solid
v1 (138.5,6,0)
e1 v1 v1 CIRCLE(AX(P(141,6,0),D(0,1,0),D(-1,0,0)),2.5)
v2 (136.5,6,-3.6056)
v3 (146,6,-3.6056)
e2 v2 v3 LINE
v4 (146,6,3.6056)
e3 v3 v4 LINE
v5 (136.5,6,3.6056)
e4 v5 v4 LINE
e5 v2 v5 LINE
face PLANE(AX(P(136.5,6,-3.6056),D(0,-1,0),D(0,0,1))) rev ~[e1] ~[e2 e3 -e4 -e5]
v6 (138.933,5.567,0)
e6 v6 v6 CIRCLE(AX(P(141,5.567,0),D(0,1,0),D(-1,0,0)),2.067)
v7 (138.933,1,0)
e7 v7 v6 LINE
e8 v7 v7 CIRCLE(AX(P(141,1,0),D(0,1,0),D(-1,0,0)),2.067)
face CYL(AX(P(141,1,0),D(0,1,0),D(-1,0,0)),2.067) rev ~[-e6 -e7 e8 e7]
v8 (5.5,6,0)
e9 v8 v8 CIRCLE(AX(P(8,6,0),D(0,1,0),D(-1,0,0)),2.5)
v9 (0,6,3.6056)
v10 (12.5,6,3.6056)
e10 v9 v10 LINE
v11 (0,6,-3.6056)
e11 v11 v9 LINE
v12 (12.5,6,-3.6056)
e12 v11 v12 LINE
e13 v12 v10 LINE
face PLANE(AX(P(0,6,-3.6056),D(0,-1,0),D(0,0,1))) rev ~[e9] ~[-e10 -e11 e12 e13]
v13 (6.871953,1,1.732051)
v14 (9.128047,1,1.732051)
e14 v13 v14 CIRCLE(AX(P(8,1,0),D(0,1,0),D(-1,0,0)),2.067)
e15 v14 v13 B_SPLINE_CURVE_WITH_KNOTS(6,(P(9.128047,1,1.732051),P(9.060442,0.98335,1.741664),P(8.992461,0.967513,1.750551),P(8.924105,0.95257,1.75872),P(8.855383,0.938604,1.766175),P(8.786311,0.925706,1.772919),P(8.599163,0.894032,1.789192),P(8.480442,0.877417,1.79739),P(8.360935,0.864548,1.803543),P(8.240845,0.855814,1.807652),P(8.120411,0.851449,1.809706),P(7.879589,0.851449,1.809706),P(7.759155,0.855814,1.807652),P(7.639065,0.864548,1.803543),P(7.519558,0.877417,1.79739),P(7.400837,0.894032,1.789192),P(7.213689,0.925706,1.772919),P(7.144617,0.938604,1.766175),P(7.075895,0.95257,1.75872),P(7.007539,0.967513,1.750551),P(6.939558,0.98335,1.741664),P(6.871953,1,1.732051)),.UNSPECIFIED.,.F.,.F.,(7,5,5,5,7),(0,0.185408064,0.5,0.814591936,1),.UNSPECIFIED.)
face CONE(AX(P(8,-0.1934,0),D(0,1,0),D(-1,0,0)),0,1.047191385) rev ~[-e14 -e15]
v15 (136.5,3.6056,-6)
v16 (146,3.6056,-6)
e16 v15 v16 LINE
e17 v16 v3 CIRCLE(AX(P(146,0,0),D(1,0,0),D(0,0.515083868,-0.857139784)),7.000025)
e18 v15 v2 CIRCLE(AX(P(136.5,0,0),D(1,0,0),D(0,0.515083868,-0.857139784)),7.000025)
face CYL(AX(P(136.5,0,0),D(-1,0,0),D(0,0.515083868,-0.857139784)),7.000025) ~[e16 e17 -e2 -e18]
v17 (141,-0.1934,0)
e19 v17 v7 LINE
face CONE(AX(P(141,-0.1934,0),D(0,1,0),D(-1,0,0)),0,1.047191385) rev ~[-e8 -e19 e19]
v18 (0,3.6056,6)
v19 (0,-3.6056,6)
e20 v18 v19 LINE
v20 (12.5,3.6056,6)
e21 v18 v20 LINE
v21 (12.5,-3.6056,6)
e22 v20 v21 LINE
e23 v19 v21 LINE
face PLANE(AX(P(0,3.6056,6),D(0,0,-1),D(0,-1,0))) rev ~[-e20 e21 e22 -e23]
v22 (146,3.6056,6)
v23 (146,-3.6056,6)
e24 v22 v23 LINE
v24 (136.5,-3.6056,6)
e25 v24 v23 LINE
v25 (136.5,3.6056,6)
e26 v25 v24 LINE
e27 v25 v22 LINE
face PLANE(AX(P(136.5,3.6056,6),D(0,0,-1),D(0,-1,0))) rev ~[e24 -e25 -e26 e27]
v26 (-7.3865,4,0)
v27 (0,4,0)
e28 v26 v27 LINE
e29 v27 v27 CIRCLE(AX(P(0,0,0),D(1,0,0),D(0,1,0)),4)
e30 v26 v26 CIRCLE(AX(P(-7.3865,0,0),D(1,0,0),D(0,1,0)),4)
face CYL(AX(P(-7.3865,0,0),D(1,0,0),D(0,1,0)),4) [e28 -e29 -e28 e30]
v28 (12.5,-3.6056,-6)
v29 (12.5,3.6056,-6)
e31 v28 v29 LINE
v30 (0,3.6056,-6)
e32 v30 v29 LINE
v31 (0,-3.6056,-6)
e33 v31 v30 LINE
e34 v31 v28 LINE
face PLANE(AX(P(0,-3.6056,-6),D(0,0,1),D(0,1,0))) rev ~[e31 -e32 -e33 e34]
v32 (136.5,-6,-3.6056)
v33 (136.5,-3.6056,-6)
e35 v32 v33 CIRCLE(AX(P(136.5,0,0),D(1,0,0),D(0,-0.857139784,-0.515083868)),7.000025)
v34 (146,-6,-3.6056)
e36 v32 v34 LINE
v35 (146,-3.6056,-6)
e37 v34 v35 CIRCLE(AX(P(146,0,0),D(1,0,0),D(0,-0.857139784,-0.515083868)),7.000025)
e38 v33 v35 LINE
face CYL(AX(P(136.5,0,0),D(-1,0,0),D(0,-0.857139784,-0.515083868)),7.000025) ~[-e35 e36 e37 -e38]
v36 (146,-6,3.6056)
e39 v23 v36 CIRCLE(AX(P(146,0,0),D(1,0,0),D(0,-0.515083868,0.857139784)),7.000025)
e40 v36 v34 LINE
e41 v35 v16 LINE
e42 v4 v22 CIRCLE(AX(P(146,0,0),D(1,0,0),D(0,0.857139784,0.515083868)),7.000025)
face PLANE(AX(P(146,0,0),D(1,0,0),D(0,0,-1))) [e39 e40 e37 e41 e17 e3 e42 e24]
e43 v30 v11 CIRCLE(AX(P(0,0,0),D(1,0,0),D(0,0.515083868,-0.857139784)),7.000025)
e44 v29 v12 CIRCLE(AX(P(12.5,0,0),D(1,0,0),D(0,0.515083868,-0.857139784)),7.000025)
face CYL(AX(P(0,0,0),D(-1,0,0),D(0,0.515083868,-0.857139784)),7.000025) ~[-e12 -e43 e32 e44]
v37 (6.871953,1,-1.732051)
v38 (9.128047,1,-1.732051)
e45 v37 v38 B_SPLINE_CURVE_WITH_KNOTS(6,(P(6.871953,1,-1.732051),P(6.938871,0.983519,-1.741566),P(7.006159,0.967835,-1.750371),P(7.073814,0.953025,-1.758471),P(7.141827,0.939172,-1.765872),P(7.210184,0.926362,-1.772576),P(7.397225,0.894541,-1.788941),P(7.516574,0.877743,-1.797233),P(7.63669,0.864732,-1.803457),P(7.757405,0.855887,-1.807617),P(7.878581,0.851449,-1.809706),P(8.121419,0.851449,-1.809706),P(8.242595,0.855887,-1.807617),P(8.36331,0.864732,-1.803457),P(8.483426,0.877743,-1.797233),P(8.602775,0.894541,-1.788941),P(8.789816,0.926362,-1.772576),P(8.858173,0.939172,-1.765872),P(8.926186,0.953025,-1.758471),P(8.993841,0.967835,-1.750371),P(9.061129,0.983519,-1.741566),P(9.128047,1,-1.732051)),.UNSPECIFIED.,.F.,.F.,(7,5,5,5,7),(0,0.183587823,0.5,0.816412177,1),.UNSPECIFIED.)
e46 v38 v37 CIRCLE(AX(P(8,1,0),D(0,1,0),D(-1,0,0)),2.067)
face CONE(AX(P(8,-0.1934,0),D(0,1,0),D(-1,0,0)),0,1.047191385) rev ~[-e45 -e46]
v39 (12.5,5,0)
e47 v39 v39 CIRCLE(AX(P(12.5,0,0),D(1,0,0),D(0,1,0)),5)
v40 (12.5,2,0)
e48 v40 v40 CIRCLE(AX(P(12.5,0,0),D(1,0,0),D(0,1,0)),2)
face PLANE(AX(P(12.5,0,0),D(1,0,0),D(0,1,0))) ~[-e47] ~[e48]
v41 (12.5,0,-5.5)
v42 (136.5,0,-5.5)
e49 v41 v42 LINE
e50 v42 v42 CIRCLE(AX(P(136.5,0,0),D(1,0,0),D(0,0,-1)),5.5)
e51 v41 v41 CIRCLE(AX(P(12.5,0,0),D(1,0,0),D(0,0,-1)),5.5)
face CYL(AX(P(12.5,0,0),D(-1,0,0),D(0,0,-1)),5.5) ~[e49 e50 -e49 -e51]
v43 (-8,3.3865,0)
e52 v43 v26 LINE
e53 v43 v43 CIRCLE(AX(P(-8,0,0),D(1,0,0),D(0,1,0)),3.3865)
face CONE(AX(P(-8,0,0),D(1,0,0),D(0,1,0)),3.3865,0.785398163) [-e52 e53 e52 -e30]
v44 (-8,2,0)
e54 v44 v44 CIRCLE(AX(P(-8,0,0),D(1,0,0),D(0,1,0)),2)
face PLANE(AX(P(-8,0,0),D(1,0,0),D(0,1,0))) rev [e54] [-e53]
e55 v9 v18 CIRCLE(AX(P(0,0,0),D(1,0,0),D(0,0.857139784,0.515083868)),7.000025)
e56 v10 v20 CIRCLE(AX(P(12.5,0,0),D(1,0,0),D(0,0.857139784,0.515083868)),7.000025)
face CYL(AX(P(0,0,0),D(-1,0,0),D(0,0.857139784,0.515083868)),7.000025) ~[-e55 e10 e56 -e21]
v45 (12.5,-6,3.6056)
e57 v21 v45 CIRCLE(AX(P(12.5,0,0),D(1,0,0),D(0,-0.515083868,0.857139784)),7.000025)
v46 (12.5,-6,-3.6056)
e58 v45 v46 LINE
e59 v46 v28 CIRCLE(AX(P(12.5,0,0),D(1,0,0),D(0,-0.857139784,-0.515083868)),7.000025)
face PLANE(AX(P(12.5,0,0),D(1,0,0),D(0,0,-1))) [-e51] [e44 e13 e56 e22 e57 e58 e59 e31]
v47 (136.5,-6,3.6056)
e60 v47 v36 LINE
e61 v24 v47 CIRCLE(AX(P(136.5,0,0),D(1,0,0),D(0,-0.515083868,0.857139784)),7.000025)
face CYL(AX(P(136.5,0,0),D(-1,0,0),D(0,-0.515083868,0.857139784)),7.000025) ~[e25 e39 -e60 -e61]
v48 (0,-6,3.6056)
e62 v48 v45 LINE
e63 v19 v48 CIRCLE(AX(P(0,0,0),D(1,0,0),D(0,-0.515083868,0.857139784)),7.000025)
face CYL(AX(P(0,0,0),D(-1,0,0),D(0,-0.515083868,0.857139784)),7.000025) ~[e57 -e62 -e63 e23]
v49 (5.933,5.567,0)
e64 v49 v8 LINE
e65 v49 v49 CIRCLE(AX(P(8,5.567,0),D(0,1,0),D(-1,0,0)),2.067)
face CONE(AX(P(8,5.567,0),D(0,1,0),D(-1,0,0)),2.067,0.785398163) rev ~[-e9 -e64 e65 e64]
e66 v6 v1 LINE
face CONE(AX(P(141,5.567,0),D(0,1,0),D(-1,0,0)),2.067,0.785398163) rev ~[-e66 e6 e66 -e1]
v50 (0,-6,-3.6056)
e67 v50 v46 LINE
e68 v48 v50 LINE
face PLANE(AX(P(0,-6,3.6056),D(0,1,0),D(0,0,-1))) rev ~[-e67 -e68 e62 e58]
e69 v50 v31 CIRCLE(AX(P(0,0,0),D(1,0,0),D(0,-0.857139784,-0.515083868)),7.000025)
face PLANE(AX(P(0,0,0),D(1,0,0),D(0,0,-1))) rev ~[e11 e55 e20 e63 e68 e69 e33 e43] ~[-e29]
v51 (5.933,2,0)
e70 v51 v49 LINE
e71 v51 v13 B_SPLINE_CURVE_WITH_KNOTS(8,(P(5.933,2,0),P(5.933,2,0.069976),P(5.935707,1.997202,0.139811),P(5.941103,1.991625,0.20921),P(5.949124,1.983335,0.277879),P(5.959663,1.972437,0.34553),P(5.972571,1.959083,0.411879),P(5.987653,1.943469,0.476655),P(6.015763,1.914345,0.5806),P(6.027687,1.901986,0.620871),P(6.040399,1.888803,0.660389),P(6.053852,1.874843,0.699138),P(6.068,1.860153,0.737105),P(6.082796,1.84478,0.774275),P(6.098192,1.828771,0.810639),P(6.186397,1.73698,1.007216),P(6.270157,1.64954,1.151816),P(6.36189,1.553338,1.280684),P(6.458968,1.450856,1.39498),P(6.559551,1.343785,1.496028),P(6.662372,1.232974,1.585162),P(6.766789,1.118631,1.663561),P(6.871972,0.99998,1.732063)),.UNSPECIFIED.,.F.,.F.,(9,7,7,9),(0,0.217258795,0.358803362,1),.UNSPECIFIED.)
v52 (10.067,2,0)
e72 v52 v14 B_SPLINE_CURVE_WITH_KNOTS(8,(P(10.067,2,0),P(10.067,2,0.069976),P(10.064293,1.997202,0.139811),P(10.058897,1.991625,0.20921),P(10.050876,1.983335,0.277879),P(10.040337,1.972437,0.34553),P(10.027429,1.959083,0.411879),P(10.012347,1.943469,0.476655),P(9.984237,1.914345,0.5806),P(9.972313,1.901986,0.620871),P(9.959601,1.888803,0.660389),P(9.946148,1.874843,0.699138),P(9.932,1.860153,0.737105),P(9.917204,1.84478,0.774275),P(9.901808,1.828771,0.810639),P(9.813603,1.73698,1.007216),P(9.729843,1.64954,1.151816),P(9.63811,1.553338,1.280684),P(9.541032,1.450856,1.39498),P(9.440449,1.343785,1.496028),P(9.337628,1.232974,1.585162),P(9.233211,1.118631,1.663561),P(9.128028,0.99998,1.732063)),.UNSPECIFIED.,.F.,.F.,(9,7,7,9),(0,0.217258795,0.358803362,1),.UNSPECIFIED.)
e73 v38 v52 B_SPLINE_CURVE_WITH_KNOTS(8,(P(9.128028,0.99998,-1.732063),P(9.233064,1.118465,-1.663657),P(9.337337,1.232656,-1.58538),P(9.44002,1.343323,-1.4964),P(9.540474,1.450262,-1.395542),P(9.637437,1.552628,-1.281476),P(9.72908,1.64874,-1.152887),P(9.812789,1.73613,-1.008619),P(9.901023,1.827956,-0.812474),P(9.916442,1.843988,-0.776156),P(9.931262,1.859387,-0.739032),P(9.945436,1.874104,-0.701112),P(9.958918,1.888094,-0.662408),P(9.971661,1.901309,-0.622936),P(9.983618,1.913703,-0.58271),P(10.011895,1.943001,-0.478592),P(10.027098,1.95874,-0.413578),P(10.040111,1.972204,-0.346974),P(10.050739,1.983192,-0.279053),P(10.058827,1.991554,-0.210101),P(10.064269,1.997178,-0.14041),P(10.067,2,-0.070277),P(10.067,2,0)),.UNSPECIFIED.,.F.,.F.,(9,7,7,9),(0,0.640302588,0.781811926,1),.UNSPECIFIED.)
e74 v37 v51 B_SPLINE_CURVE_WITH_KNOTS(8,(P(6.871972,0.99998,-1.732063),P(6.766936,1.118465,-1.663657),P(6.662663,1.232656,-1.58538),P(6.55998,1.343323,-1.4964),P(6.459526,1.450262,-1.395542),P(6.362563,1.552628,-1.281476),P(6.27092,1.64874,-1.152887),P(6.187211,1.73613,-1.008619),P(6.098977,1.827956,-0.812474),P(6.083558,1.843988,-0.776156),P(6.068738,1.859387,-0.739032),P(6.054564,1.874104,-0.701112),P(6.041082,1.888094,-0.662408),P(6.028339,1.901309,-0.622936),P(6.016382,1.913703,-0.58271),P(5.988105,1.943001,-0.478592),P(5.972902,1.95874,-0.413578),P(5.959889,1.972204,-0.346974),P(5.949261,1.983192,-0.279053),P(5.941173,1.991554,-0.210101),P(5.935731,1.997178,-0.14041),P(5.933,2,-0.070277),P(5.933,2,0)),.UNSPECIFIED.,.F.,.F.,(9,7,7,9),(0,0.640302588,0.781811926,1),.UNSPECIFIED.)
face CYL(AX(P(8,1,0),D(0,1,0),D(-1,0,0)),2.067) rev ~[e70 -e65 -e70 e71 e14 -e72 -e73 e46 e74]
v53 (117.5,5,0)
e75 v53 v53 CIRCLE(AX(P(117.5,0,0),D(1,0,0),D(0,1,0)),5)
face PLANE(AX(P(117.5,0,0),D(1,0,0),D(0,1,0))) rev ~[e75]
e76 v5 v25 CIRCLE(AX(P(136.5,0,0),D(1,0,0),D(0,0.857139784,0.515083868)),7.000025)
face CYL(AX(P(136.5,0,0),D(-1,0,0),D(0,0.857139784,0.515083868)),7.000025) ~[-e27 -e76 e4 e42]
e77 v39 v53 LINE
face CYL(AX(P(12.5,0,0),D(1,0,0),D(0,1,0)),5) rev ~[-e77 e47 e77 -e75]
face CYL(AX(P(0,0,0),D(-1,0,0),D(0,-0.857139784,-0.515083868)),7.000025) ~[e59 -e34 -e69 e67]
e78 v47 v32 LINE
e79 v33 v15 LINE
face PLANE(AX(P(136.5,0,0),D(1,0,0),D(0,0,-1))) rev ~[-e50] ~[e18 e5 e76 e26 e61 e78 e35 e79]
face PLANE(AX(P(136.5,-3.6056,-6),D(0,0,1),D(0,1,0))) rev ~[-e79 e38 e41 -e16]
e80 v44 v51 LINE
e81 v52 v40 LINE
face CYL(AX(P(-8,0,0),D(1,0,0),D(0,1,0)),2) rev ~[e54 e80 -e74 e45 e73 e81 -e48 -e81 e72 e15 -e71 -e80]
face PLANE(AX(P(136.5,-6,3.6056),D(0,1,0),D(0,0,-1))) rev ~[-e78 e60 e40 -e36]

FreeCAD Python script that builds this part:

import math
import FreeCAD as App
import Part
import Sketcher
from FreeCAD import Vector
Q = App.Units.Quantity


def add_polygon(sketch, points):
    """Adds a closed chain of lines whose ends are joined by coincident constraints."""
    first, n = sketch.GeometryCount, len(points)
    for a, b in zip(points, points[1:] + points[:1]):
        sketch.addGeometry(Part.LineSegment(App.Vector(*a, 0), App.Vector(*b, 0)), False)
    for i in range(n):
        sketch.addConstraint(Sketcher.Constraint("Coincident", first + i, 2, first + (i + 1) % n, 1))

doc = App.newDocument("Part")
body = doc.addObject("PartDesign::Body", "Body")

# Sketch on XY plane
sketch1 = doc.addObject("Sketcher::SketchObject", "Sketch")
body.addObject(sketch1)
sketch1.AttachmentSupport = (doc.XY_Plane, [""])
sketch1.MapMode = "FlatFace"
add_polygon(sketch1, [(-8, 0), (0, 0), (0, 4), (-7.3865, 4), (-8, 3.3865)])  # lines 0-4
sketch1.addConstraint([
    Sketcher.Constraint("Horizontal", 0),
    Sketcher.Constraint("Vertical", 1),
    Sketcher.Constraint("Horizontal", 2),
    Sketcher.Constraint("Vertical", 4),
    Sketcher.Constraint("Coincident", 0, 2, -1, 1),
    Sketcher.Constraint("DistanceX", 0, 1, 0, 2, Q("8 mm")),
    Sketcher.Constraint("DistanceY", 1, 1, 1, 2, Q("4 mm")),
    Sketcher.Constraint("Angle", 3, Q("-135 deg")),
    Sketcher.Constraint("DistanceX", 2, 2, 2, 1, Q("7.3865 mm")),
])
revolution = doc.addObject("PartDesign::Revolution", "Revolution")
body.addObject(revolution)
revolution.Profile = sketch1
revolution.ReferenceAxis = (sketch1, ["H_Axis"])
revolution.Angle = 360

# Sketch on YZ plane
sketch2 = doc.addObject("Sketcher::SketchObject", "Sketch001")
body.addObject(sketch2)
sketch2.AttachmentSupport = (doc.YZ_Plane, [""])
sketch2.MapMode = "FlatFace"
sketch2.addGeometry([
    Part.ArcOfCircle(Part.Circle(Vector(0, 0, 0), Vector(0, 0, 1), 7.000025), math.radians(31.003061), math.radians(58.996939)),  # 0
    Part.LineSegment(Vector(3.6056, 6, 0), Vector(-3.6056, 6, 0)),  # 1
    Part.ArcOfCircle(Part.Circle(Vector(0, 0, 0), Vector(0, 0, 1), 7.000025), math.radians(121.003061), math.radians(148.996939)),  # 2
    Part.LineSegment(Vector(-6, 3.6056, 0), Vector(-6, -3.6056, 0)),  # 3
    Part.ArcOfCircle(Part.Circle(Vector(0, 0, 0), Vector(0, 0, 1), 7.000025), math.radians(-148.996939), math.radians(-121.003061)),  # 4
    Part.LineSegment(Vector(-3.6056, -6, 0), Vector(3.6056, -6, 0)),  # 5
    Part.ArcOfCircle(Part.Circle(Vector(0, 0, 0), Vector(0, 0, 1), 7.000025), math.radians(-58.996939), math.radians(-31.003061)),  # 6
    Part.LineSegment(Vector(6, -3.6056, 0), Vector(6, 3.6056, 0)),  # 7
], False)
sketch2.addConstraint([
    Sketcher.Constraint("Coincident", 0, 2, 1, 1),
    Sketcher.Constraint("Coincident", 1, 2, 2, 1),
    Sketcher.Constraint("Coincident", 2, 2, 3, 1),
    Sketcher.Constraint("Coincident", 3, 2, 4, 1),
    Sketcher.Constraint("Coincident", 4, 2, 5, 1),
    Sketcher.Constraint("Coincident", 5, 2, 6, 1),
    Sketcher.Constraint("Coincident", 6, 2, 7, 1),
    Sketcher.Constraint("Coincident", 7, 2, 0, 1),
    Sketcher.Constraint("Horizontal", 1),
    Sketcher.Constraint("Vertical", 3),
    Sketcher.Constraint("Horizontal", 5),
    Sketcher.Constraint("Vertical", 7),
    Sketcher.Constraint("Coincident", 0, 3, -1, 1),
    Sketcher.Constraint("Coincident", 2, 3, -1, 1),
    Sketcher.Constraint("Coincident", 4, 3, -1, 1),
    Sketcher.Constraint("Coincident", 6, 3, -1, 1),
    Sketcher.Constraint("Equal", 0, 2),
    Sketcher.Constraint("Equal", 2, 4),
    Sketcher.Constraint("Equal", 4, 6),
    Sketcher.Constraint("Horizontal", 3, 2, 6, 2),
    Sketcher.Constraint("Vertical", 1, 2, 4, 2),
    Sketcher.Constraint("Equal", 5, 3),
    Sketcher.Constraint("Radius", 0, Q("7 mm")),
    Sketcher.Constraint("DistanceY", -1, 1, 0, 2, Q("6 mm")),
])
pad1 = doc.addObject("PartDesign::Pad", "Pad")
body.addObject(pad1)
pad1.Profile = sketch2
pad1.Length = 12.5

# Sketch on YZ plane
sketch3 = doc.addObject("Sketcher::SketchObject", "Sketch002")
body.addObject(sketch3)
sketch3.AttachmentSupport = (doc.YZ_Plane, [""])
sketch3.MapMode = "FlatFace"
sketch3.AttachmentOffset = App.Placement(Vector(0, 0, 12.5), App.Rotation())
sketch3.addGeometry(Part.Circle(Vector(0, 0, 0), Vector(0, 0, 1), 5.5), False)
sketch3.addConstraint([
    Sketcher.Constraint("Coincident", 0, 3, -1, 1),
    Sketcher.Constraint("Diameter", 0, Q("11 mm")),
])
pad2 = doc.addObject("PartDesign::Pad", "Pad001")
body.addObject(pad2)
pad2.Profile = sketch3
pad2.Length = 124

# Sketch on YZ plane
sketch4 = doc.addObject("Sketcher::SketchObject", "Sketch003")
body.addObject(sketch4)
sketch4.AttachmentSupport = (doc.YZ_Plane, [""])
sketch4.MapMode = "FlatFace"
sketch4.AttachmentOffset = App.Placement(Vector(0, 0, 136.5), App.Rotation())
sketch4.addGeometry([
    Part.ArcOfCircle(Part.Circle(Vector(0, 0, 0), Vector(0, 0, 1), 7.000025), math.radians(31.003061), math.radians(58.996939)),  # 0
    Part.LineSegment(Vector(3.6056, 6, 0), Vector(-3.6056, 6, 0)),  # 1
    Part.ArcOfCircle(Part.Circle(Vector(0, 0, 0), Vector(0, 0, 1), 7.000025), math.radians(121.003061), math.radians(148.996939)),  # 2
    Part.LineSegment(Vector(-6, 3.6056, 0), Vector(-6, -3.6056, 0)),  # 3
    Part.ArcOfCircle(Part.Circle(Vector(0, 0, 0), Vector(0, 0, 1), 7.000025), math.radians(-148.996939), math.radians(-121.003061)),  # 4
    Part.LineSegment(Vector(-3.6056, -6, 0), Vector(3.6056, -6, 0)),  # 5
    Part.ArcOfCircle(Part.Circle(Vector(0, 0, 0), Vector(0, 0, 1), 7.000025), math.radians(-58.996939), math.radians(-31.003061)),  # 6
    Part.LineSegment(Vector(6, -3.6056, 0), Vector(6, 3.6056, 0)),  # 7
], False)
sketch4.addConstraint([
    Sketcher.Constraint("Coincident", 0, 2, 1, 1),
    Sketcher.Constraint("Coincident", 1, 2, 2, 1),
    Sketcher.Constraint("Coincident", 2, 2, 3, 1),
    Sketcher.Constraint("Coincident", 3, 2, 4, 1),
    Sketcher.Constraint("Coincident", 4, 2, 5, 1),
    Sketcher.Constraint("Coincident", 5, 2, 6, 1),
    Sketcher.Constraint("Coincident", 6, 2, 7, 1),
    Sketcher.Constraint("Coincident", 7, 2, 0, 1),
    Sketcher.Constraint("Horizontal", 1),
    Sketcher.Constraint("Vertical", 3),
    Sketcher.Constraint("Horizontal", 5),
    Sketcher.Constraint("Vertical", 7),
    Sketcher.Constraint("Coincident", 0, 3, -1, 1),
    Sketcher.Constraint("Coincident", 2, 3, -1, 1),
    Sketcher.Constraint("Coincident", 4, 3, -1, 1),
    Sketcher.Constraint("Coincident", 6, 3, -1, 1),
    Sketcher.Constraint("Equal", 0, 2),
    Sketcher.Constraint("Equal", 2, 4),
    Sketcher.Constraint("Equal", 4, 6),
    Sketcher.Constraint("Horizontal", 3, 2, 6, 2),
    Sketcher.Constraint("Vertical", 1, 2, 4, 2),
    Sketcher.Constraint("Equal", 5, 3),
    Sketcher.Constraint("Radius", 0, Q("7 mm")),
    Sketcher.Constraint("DistanceY", -1, 1, 0, 2, Q("6 mm")),
])
pad3 = doc.addObject("PartDesign::Pad", "Pad002")
body.addObject(pad3)
pad3.Profile = sketch4
pad3.Length = 9.5

# Sketch on XY plane
sketch5 = doc.addObject("Sketcher::SketchObject", "Sketch004")
body.addObject(sketch5)
sketch5.AttachmentSupport = (doc.XY_Plane, [""])
sketch5.MapMode = "FlatFace"
add_polygon(sketch5, [(8, -0.1934), (8, 6), (5.5, 6), (5.933, 5.567), (5.933, 1)])  # lines 0-4
sketch5.addGeometry(Part.LineSegment(Vector(8, -0.1934, 0), Vector(8, 6, 0)), True)  # axis
sketch5.addConstraint([
    Sketcher.Constraint("Vertical", 0),
    Sketcher.Constraint("Horizontal", 1),
    Sketcher.Constraint("Vertical", 3),
    Sketcher.Constraint("Vertical", 5),
    Sketcher.Constraint("Coincident", 5, 1, 4, 2),
    Sketcher.Constraint("Horizontal", 1, 2, 5, 2),
    Sketcher.Constraint("Angle", 2, Q("-45 deg")),
    Sketcher.Constraint("Angle", 4, Q("-30.0004 deg")),
    Sketcher.Constraint("DistanceX", 1, 2, 1, 1, Q("2.5 mm")),
    Sketcher.Constraint("DistanceX", -1, 1, 0, 2, Q("8 mm")),
    Sketcher.Constraint("DistanceY", -1, 1, 0, 2, Q("6 mm")),
    Sketcher.Constraint("DistanceY", -1, 1, 3, 2, Q("1 mm")),
    Sketcher.Constraint("DistanceY", 3, 2, 3, 1, Q("4.567 mm")),
])
groove = doc.addObject("PartDesign::Groove", "Groove")
body.addObject(groove)
groove.Profile = sketch5
groove.ReferenceAxis = (sketch5, ["Axis0"])
groove.Angle = 360

# Sketch on XY plane
sketch6 = doc.addObject("Sketcher::SketchObject", "Sketch005")
body.addObject(sketch6)
sketch6.AttachmentSupport = (doc.XY_Plane, [""])
sketch6.MapMode = "FlatFace"
add_polygon(sketch6, [(141, -0.1934), (141, 6), (138.5, 6), (138.933, 5.567), (138.933, 1)])  # lines 0-4
sketch6.addGeometry(Part.LineSegment(Vector(141, -0.1934, 0), Vector(141, 6, 0)), True)  # axis
sketch6.addConstraint([
    Sketcher.Constraint("Vertical", 0),
    Sketcher.Constraint("Horizontal", 1),
    Sketcher.Constraint("Vertical", 3),
    Sketcher.Constraint("Vertical", 5),
    Sketcher.Constraint("Coincident", 5, 1, 4, 2),
    Sketcher.Constraint("Horizontal", 1, 2, 5, 2),
    Sketcher.Constraint("Angle", 2, Q("-45 deg")),
    Sketcher.Constraint("Angle", 4, Q("-30.0004 deg")),
    Sketcher.Constraint("DistanceX", 1, 2, 1, 1, Q("2.5 mm")),
    Sketcher.Constraint("DistanceX", -1, 1, 0, 2, Q("141 mm")),
    Sketcher.Constraint("DistanceY", -1, 1, 0, 2, Q("6 mm")),
    Sketcher.Constraint("DistanceY", -1, 1, 3, 2, Q("1 mm")),
    Sketcher.Constraint("DistanceY", 3, 2, 3, 1, Q("4.567 mm")),
])
groove2 = doc.addObject("PartDesign::Groove", "Groove001")
body.addObject(groove2)
groove2.Profile = sketch6
groove2.ReferenceAxis = (sketch6, ["Axis0"])
groove2.Angle = 360

# Sketch on XY plane
sketch7 = doc.addObject("Sketcher::SketchObject", "Sketch006")
body.addObject(sketch7)
sketch7.AttachmentSupport = (doc.XY_Plane, [""])
sketch7.MapMode = "FlatFace"
add_polygon(sketch7, [(-8, 0), (117.5, 0), (117.5, 5), (12.5, 5), (12.5, 2), (-8, 2)])  # lines 0-5
sketch7.addConstraint([
    Sketcher.Constraint("Horizontal", 0),
    Sketcher.Constraint("Vertical", 1),
    Sketcher.Constraint("Horizontal", 2),
    Sketcher.Constraint("Vertical", 3),
    Sketcher.Constraint("Horizontal", 4),
    Sketcher.Constraint("Vertical", 5),
    Sketcher.Constraint("PointOnObject", 0, 2, -1),
    Sketcher.Constraint("DistanceX", 2, 2, 2, 1, Q("105 mm")),
    Sketcher.Constraint("DistanceY", 1, 1, 1, 2, Q("5 mm")),
    Sketcher.Constraint("DistanceY", 3, 2, 3, 1, Q("3 mm")),
    Sketcher.Constraint("DistanceX", 0, 1, 0, 2, Q("125.5 mm")),
    Sketcher.Constraint("DistanceX", 4, 2, -1, 1, Q("8 mm")),
])
groove3 = doc.addObject("PartDesign::Groove", "Groove002")
body.addObject(groove3)
groove3.Profile = sketch7
groove3.ReferenceAxis = (sketch7, ["H_Axis"])
groove3.Angle = 360

doc.recompute()
